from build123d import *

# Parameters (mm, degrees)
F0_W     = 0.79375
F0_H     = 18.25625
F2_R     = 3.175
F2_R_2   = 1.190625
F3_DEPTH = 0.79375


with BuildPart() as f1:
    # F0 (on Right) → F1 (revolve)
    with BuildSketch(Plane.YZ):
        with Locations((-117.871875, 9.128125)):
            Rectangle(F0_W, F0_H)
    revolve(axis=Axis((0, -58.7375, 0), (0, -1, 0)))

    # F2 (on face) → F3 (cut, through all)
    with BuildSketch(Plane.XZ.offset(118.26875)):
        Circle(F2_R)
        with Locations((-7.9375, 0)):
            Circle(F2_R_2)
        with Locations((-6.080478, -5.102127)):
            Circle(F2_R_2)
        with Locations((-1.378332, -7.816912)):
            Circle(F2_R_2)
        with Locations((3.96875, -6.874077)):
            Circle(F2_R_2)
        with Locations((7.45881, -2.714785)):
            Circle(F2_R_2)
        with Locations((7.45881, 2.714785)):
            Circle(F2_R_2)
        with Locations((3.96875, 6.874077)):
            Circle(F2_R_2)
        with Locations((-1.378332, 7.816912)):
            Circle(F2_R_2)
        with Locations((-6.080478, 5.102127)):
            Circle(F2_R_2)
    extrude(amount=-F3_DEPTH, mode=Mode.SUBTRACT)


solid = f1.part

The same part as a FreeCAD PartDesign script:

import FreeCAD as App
import Part
import Sketcher

V = App.Vector
Q = App.Units.Quantity


def add_polygon(sketch, points):
    """Adds a closed chain of lines whose ends are joined by coincident constraints."""
    first, n = sketch.GeometryCount, len(points)
    for a, b in zip(points, points[1:] + points[:1]):
        sketch.addGeometry(Part.LineSegment(App.Vector(*a, 0), App.Vector(*b, 0)), False)
    for i in range(n):
        sketch.addConstraint(Sketcher.Constraint("Coincident", first + i, 2, first + (i + 1) % n, 1))

doc = App.newDocument("Part")
params = doc.addObject("Spreadsheet::Sheet", "Params")
for row, (alias, value) in enumerate([
    ("sketch1_width", "0.03125 in"),
    ("sketch1_height", "0.71875 in"),
    ("revolution_angle", "360 deg"),
    ("sketch2_diameter", "0.25 in"),
    ("sketch2_diameter2", "0.09375 in"),
], start=1):
    params.set(f"A{row}", alias)
    params.set(f"B{row}", "=" + value)
    params.setAlias(f"B{row}", alias)

body = doc.addObject("PartDesign::Body", "Body")

# Sketch on YZ plane
sketch1 = body.newObject("Sketcher::SketchObject", "Sketch")
sketch1.AttachmentSupport = (doc.getObject("YZ_Plane"), [""])
sketch1.MapMode = "FlatFace"
add_polygon(sketch1, [(-118.3, 18.3), (-118.3, 0), (-117.5, 0), (-117.5, 18.3)])  # lines 0-3
sketch1.addConstraint([
    Sketcher.Constraint("Vertical", 0),
    Sketcher.Constraint("Horizontal", 1),
    Sketcher.Constraint("Vertical", 2),
    Sketcher.Constraint("Horizontal", 3),
    Sketcher.Constraint("PointOnObject", 0, 2, -1),
    Sketcher.Constraint("DistanceX", 1, 1, 1, 2, Q("0.03125 in")),
    Sketcher.Constraint("DistanceY", 0, 2, 0, 1, Q("0.71875 in")),
    Sketcher.Constraint("DistanceX", 0, 2, -1, 1, Q("4.65625 in")),
])
sketch1.setExpression("Constraints[9]", "Params.sketch1_width")
sketch1.setExpression("Constraints[10]", "Params.sketch1_height")
revolution = body.newObject("PartDesign::Revolution", "Revolution")
revolution.Profile = sketch1
revolution.ReferenceAxis = (sketch1, ["H_Axis"])
revolution.setExpression("Angle", "Params.revolution_angle")

# Sketch on XZ plane
sketch2 = body.newObject("Sketcher::SketchObject", "Sketch001")
sketch2.AttachmentSupport = (doc.getObject("XZ_Plane"), [""])
sketch2.MapMode = "FlatFace"
sketch2.AttachmentOffset = App.Placement(V(0, 0, 4.65625 * 25.4), App.Rotation())
sketch2.addGeometry([
    Part.Circle(V(0, 0, 0), V(0, 0, 1), 3.2),  # 0
    Part.Circle(V(-7.9, 0, 0), V(0, 0, 1), 1.2),  # 1
    Part.Circle(V(-6.1, -5.1, 0), V(0, 0, 1), 1.2),  # 2
    Part.Circle(V(-1.4, -7.8, 0), V(0, 0, 1), 1.2),  # 3
    Part.Circle(V(4, -6.9, 0), V(0, 0, 1), 1.2),  # 4
    Part.Circle(V(7.5, -2.7, 0), V(0, 0, 1), 1.2),  # 5
    Part.Circle(V(7.5, 2.7, 0), V(0, 0, 1), 1.2),  # 6
    Part.Circle(V(4, 6.9, 0), V(0, 0, 1), 1.2),  # 7
    Part.Circle(V(-1.4, 7.8, 0), V(0, 0, 1), 1.2),  # 8
    Part.Circle(V(-6.1, 5.1, 0), V(0, 0, 1), 1.2),  # 9
], False)
sketch2.addConstraint([
    Sketcher.Constraint("Coincident", 0, 3, -1, 1),
    Sketcher.Constraint("Equal", 1, 2),
    Sketcher.Constraint("Equal", 2, 3),
    Sketcher.Constraint("Equal", 3, 4),
    Sketcher.Constraint("Equal", 4, 5),
    Sketcher.Constraint("Equal", 5, 6),
    Sketcher.Constraint("Equal", 6, 7),
    Sketcher.Constraint("Equal", 7, 8),
    Sketcher.Constraint("Equal", 8, 9),
    Sketcher.Constraint("Symmetric", 5, 3, 6, 3, -1),
    Sketcher.Constraint("Symmetric", 4, 3, 7, 3, -1),
    Sketcher.Constraint("Symmetric", 3, 3, 8, 3, -1),
    Sketcher.Constraint("Symmetric", 2, 3, 9, 3, -1),
    Sketcher.Constraint("PointOnObject", 1, 3, -1),
    Sketcher.Constraint("Diameter", 0, Q("0.25 in")),
    Sketcher.Constraint("Diameter", 1, Q("0.09375 in")),
    Sketcher.Constraint("DistanceX", 1, 3, -1, 1, Q("0.3125 in")),
    Sketcher.Constraint("DistanceX", -1, 1, 4, 3, Q("0.15625 in")),
    Sketcher.Constraint("DistanceX", 2, 3, -1, 1, 6.080478),
    Sketcher.Constraint("DistanceX", 3, 3, -1, 1, 1.378332),
    Sketcher.Constraint("DistanceX", -1, 1, 5, 3, 7.45881),
    Sketcher.Constraint("DistanceY", 4, 3, 2, 3, 1.77195),
    Sketcher.Constraint("DistanceY", 4, 3, 5, 3, 4.159292),
    Sketcher.Constraint("DistanceY", 5, 3, 6, 3, 5.42957),
    Sketcher.Constraint("DistanceY", 3, 3, -1, 1, 7.816912),
])
sketch2.setExpression("Constraints[14]", "Params.sketch2_diameter")
sketch2.setExpression("Constraints[15]", "Params.sketch2_diameter2")
pocket1 = body.newObject("PartDesign::Pocket", "Pocket")
pocket1.Profile = sketch2
pocket1.Type = "ThroughAll"

doc.recompute()
